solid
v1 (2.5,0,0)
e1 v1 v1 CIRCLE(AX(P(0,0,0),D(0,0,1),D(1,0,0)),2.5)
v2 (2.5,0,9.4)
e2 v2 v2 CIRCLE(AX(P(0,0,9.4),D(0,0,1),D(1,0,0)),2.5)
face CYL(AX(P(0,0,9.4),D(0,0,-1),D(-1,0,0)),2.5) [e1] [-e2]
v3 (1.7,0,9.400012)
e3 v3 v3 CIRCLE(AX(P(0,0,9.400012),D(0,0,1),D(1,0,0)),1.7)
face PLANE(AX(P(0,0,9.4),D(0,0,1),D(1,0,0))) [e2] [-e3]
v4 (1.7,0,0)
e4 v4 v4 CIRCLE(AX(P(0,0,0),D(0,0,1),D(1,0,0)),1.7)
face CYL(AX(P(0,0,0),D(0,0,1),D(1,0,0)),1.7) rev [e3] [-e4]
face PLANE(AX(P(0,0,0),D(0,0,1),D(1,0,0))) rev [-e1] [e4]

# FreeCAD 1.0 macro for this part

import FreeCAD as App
import Part
import Sketcher

V = App.Vector

doc = App.newDocument("Part")
body = doc.addObject("PartDesign::Body", "Body")

# Sketch on XY plane
sketch1 = body.newObject("Sketcher::SketchObject", "Sketch")
sketch1.AttachmentSupport = (doc.getObject("XY_Plane"), [""])
sketch1.MapMode = "FlatFace"
sketch1.addGeometry(Part.Circle(V(0, 0, 0), V(0, 0, 1), 2.5), False)
sketch1.addConstraint([
    Sketcher.Constraint("Coincident", 0, 3, -1, 1),
    Sketcher.Constraint("Diameter", 0, 5.0),
])
pad1 = body.newObject("PartDesign::Pad", "Pad")
pad1.Profile = sketch1
pad1.Length = 9.4

# Sketch on XY plane
sketch2 = body.newObject("Sketcher::SketchObject", "Sketch001")
sketch2.AttachmentSupport = (doc.getObject("XY_Plane"), [""])
sketch2.MapMode = "FlatFace"
sketch2.AttachmentOffset = App.Placement(V(0, 0, 9.4), App.Rotation())
sketch2.addGeometry(Part.Circle(V(0, 0, 0), V(0, 0, 1), 1.7), False)
sketch2.addConstraint([
    Sketcher.Constraint("Coincident", 0, 3, -1, 1),
    Sketcher.Constraint("Diameter", 0, 3.4),
])
pocket1 = body.newObject("PartDesign::Pocket", "Pocket")
pocket1.Profile = sketch2
pocket1.Type = "ThroughAll"
pocket1.Midplane = True

doc.recompute()
